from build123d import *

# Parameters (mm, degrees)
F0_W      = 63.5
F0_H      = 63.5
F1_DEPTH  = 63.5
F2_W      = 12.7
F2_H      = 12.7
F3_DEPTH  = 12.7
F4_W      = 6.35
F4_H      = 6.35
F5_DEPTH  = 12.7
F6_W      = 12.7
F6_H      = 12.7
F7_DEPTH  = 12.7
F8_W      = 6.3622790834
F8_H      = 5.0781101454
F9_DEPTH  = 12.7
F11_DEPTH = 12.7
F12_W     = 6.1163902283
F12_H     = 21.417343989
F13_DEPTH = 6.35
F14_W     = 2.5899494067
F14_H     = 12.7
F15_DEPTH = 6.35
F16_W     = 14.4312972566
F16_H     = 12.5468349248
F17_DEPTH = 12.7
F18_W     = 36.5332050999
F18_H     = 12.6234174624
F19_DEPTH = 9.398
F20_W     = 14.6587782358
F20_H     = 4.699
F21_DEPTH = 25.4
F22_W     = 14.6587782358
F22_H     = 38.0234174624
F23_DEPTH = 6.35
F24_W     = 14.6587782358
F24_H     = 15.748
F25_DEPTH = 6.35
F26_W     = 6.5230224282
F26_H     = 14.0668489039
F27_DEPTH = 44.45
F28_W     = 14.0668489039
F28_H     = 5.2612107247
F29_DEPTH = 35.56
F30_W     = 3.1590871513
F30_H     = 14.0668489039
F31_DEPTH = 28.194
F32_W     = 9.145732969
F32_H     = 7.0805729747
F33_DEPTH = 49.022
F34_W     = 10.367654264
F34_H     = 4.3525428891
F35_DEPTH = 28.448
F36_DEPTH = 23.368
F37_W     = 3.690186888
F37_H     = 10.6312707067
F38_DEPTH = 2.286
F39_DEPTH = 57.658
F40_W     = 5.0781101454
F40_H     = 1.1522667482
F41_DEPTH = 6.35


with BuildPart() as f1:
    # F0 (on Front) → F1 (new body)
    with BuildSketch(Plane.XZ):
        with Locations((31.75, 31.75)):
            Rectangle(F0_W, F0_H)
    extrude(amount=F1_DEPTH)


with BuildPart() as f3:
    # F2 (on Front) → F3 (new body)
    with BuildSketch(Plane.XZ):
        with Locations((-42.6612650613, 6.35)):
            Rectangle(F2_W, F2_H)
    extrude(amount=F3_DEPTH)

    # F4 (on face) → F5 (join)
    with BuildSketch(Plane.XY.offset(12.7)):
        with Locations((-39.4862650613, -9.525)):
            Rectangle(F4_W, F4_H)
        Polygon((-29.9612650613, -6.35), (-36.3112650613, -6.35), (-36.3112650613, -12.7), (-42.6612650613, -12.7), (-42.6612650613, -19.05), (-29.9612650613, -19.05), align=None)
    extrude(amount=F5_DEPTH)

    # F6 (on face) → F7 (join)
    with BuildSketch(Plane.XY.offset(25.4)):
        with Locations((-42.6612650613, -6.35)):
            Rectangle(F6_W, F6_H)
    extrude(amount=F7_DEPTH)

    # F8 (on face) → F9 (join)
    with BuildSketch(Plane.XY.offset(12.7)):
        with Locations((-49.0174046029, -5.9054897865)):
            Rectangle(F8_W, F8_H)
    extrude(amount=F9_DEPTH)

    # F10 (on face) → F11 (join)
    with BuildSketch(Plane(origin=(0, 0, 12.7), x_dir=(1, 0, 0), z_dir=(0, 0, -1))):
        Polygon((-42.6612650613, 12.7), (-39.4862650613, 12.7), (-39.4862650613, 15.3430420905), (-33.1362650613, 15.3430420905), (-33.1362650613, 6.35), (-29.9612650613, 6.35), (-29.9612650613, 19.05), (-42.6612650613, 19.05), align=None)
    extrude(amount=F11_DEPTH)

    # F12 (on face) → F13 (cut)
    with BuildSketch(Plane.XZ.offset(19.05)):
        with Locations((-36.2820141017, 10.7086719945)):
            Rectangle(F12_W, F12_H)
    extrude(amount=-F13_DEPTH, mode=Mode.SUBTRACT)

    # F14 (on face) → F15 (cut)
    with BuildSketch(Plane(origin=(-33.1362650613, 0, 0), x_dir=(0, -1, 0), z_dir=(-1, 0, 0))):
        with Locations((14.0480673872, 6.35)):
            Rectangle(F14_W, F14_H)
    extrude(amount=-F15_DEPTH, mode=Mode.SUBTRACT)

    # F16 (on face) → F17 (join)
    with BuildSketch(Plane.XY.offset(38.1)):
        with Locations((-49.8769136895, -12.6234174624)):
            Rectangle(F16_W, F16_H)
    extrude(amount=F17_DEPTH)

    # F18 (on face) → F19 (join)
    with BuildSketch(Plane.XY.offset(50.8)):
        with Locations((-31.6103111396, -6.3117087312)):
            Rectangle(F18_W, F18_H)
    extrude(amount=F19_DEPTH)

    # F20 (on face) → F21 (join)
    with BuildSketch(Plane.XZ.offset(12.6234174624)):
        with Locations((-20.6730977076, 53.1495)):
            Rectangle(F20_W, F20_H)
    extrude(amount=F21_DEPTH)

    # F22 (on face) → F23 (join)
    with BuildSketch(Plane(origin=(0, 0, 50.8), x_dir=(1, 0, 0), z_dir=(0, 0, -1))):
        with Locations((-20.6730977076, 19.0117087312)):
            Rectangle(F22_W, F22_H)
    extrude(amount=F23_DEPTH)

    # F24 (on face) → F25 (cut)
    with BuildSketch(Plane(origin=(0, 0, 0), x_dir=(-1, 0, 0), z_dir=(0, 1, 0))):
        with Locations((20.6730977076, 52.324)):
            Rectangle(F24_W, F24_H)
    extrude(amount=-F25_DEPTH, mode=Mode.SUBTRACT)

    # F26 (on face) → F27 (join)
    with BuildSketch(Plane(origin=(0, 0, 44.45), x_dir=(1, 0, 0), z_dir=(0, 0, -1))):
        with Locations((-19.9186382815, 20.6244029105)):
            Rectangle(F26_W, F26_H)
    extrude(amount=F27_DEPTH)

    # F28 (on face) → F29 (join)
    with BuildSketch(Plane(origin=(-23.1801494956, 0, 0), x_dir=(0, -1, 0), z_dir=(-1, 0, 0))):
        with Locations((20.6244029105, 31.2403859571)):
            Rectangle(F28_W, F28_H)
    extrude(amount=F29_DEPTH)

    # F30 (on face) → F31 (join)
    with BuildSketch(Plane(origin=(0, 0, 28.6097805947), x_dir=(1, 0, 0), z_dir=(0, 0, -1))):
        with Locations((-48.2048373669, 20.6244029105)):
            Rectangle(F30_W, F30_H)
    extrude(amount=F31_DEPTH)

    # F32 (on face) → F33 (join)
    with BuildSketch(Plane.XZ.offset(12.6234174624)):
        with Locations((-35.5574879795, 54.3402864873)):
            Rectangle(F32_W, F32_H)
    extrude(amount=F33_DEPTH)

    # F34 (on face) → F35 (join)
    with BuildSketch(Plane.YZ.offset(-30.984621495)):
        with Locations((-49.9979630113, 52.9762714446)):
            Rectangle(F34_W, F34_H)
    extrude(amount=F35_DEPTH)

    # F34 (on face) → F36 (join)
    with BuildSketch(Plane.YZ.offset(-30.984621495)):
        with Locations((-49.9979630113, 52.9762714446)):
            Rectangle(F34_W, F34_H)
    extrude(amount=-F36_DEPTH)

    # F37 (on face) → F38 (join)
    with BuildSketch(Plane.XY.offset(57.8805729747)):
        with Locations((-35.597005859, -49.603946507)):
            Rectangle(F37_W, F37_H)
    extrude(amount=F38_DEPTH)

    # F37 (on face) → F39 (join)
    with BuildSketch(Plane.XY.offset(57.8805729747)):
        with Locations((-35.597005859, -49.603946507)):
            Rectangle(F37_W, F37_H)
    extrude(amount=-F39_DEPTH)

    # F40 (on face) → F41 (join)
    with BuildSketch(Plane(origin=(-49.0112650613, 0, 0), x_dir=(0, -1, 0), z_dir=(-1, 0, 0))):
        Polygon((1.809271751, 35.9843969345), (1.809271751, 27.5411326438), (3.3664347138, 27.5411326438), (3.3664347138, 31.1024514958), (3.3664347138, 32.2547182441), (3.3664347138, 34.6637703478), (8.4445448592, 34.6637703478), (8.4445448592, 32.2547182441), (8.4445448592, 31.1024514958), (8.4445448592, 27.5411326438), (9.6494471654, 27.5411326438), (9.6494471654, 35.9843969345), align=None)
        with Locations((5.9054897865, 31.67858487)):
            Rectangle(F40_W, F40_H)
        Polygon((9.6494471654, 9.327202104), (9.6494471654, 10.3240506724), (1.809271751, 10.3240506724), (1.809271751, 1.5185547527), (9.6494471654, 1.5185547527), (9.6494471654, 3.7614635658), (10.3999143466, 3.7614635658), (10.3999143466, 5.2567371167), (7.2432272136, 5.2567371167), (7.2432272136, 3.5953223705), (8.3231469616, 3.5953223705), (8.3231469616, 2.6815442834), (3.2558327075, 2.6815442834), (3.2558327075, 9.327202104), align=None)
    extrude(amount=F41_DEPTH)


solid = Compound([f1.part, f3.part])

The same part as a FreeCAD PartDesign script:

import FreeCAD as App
import Part
import Sketcher
from FreeCAD import Vector
Q = App.Units.Quantity


def add_polygon(sketch, points):
    """Adds a closed chain of lines whose ends are joined by coincident constraints."""
    first, n = sketch.GeometryCount, len(points)
    for a, b in zip(points, points[1:] + points[:1]):
        sketch.addGeometry(Part.LineSegment(App.Vector(*a, 0), App.Vector(*b, 0)), False)
    for i in range(n):
        sketch.addConstraint(Sketcher.Constraint("Coincident", first + i, 2, first + (i + 1) % n, 1))

doc = App.newDocument("Part")
params = doc.addObject("Spreadsheet::Sheet", "Params")
for row, (alias, value) in enumerate([
    ("sketch1_width", "2.5 in"),
    ("pad1_length", "2.5 in"),
    ("sketch2_width", "0.5 in"),
    ("pad2_length", "0.5 in"),
    ("sketch3_width", "0.5 in"),
    ("pad3_length", "0.5 in"),
    ("sketch4_width", "0.5 in"),
    ("pad4_length", "0.5 in"),
    ("pad5_length", "0.5 in"),
    ("sketch6_width", "0.5 in"),
    ("sketch6_width2", "0.25 in"),
    ("pad6_length", "0.5 in"),
    ("pocket1_length", "0.25 in"),
    ("sketch8_height", "0.5 in"),
    ("pocket2_length", "0.25 in"),
    ("pad7_length", "0.5 in"),
    ("pad8_length", "0.37 in"),
    ("sketch11_height", "0.185 in"),
    ("pad9_length", "1 in"),
    ("pad10_length", "0.25 in"),
    ("sketch13_height", "0.62 in"),
    ("pocket3_length", "0.25 in"),
    ("pad11_length", "1.75 in"),
    ("pad12_length", "1.4 in"),
    ("pad13_length", "1.11 in"),
    ("pad14_length", "1.93 in"),
    ("pad15_length", "1.12 in"),
    ("pad16_length", "0.92 in"),
    ("pad17_length", "0.09 in"),
    ("pad18_length", "2.27 in"),
    ("pad19_length", "0.25 in"),
], start=1):
    params.set(f"A{row}", alias)
    params.set(f"B{row}", "=" + value)
    params.setAlias(f"B{row}", alias)

body = doc.addObject("PartDesign::Body", "Body")

sketch1 = body.newObject("Sketcher::SketchObject", "Sketch")
sketch1.AttachmentSupport = (doc.getObject("XZ_Plane"), [""])
sketch1.MapMode = "FlatFace"
add_polygon(sketch1, [(0, 64), (0, 0), (64, 0), (64, 64)])
sketch1.addConstraint(Sketcher.Constraint("Vertical", 0))
sketch1.addConstraint(Sketcher.Constraint("Horizontal", 1))
sketch1.addConstraint(Sketcher.Constraint("Vertical", 2))
sketch1.addConstraint(Sketcher.Constraint("Horizontal", 3))
sketch1.addConstraint(Sketcher.Constraint("Coincident", 0, 2, -1, 1))
sketch1.addConstraint(Sketcher.Constraint("Equal", 3, 0))
sketch1.addConstraint(Sketcher.Constraint("DistanceX", 1, 1, 1, 2, Q("2.5 in")))
sketch1.setExpression("Constraints[10]", "Params.sketch1_width")
pad1 = body.newObject("PartDesign::Pad", "Pad")
pad1.Profile = sketch1
pad1.setExpression("Length", "Params.pad1_length")
body2 = doc.addObject("PartDesign::Body", "Body001")

sketch2 = body2.newObject("Sketcher::SketchObject", "Sketch001")
sketch2.AttachmentSupport = (doc.getObject("XZ_Plane001"), [""])
sketch2.MapMode = "FlatFace"
add_polygon(sketch2, [(-49, 13), (-49, 0), (-36, 0), (-36, 13)])
sketch2.addConstraint(Sketcher.Constraint("Vertical", 0))
sketch2.addConstraint(Sketcher.Constraint("Horizontal", 1))
sketch2.addConstraint(Sketcher.Constraint("Vertical", 2))
sketch2.addConstraint(Sketcher.Constraint("Horizontal", 3))
sketch2.addConstraint(Sketcher.Constraint("PointOnObject", 0, 2, -1))
sketch2.addConstraint(Sketcher.Constraint("Equal", 3, 0))
sketch2.addConstraint(Sketcher.Constraint("DistanceX", 1, 1, 1, 2, Q("0.5 in")))
sketch2.addConstraint(Sketcher.Constraint("DistanceX", 0, 2, -1, 1, 49.011265))
sketch2.setExpression("Constraints[10]", "Params.sketch2_width")
pad2 = body2.newObject("PartDesign::Pad", "Pad001")
pad2.Profile = sketch2
pad2.setExpression("Length", "Params.pad2_length")

sketch3 = body2.newObject("Sketcher::SketchObject", "Sketch002")
sketch3.AttachmentSupport = (doc.getObject("XY_Plane001"), [""])
sketch3.MapMode = "FlatFace"
sketch3.AttachmentOffset = App.Placement(Vector(0, 0, 0.5 * 25.4), App.Rotation())
add_polygon(sketch3, [(-43, -6), (-43, -19), (-30, -19), (-30, -6)])
sketch3.addConstraint(Sketcher.Constraint("Vertical", 0))
sketch3.addConstraint(Sketcher.Constraint("Horizontal", 1))
sketch3.addConstraint(Sketcher.Constraint("Vertical", 2))
sketch3.addConstraint(Sketcher.Constraint("Horizontal", 3))
sketch3.addConstraint(Sketcher.Constraint("Equal", 3, 0))
sketch3.addConstraint(Sketcher.Constraint("DistanceX", 1, 1, 1, 2, Q("0.5 in")))
sketch3.addConstraint(Sketcher.Constraint("DistanceY", 0, 2, -1, 1, Q("0.75 in")))
sketch3.addConstraint(Sketcher.Constraint("DistanceX", 0, 2, -1, 1, 42.661265))
sketch3.setExpression("Constraints[9]", "Params.sketch3_width")
pad3 = body2.newObject("PartDesign::Pad", "Pad002")
pad3.Profile = sketch3
pad3.setExpression("Length", "Params.pad3_length")

sketch4 = body2.newObject("Sketcher::SketchObject", "Sketch003")
sketch4.AttachmentSupport = (doc.getObject("XY_Plane001"), [""])
sketch4.MapMode = "FlatFace"
sketch4.AttachmentOffset = App.Placement(Vector(0, 0, 1 * 25.4), App.Rotation())
add_polygon(sketch4, [(-49, 0), (-49, -13), (-36, -13), (-36, 0)])
sketch4.addConstraint(Sketcher.Constraint("Vertical", 0))
sketch4.addConstraint(Sketcher.Constraint("Horizontal", 1))
sketch4.addConstraint(Sketcher.Constraint("Vertical", 2))
sketch4.addConstraint(Sketcher.Constraint("Horizontal", 3))
sketch4.addConstraint(Sketcher.Constraint("PointOnObject", 2, 2, -1))
sketch4.addConstraint(Sketcher.Constraint("Equal", 3, 0))
sketch4.addConstraint(Sketcher.Constraint("DistanceX", 1, 1, 1, 2, Q("0.5 in")))
sketch4.addConstraint(Sketcher.Constraint("DistanceX", 0, 2, -1, 1, 49.011265))
sketch4.setExpression("Constraints[10]", "Params.sketch4_width")
pad4 = body2.newObject("PartDesign::Pad", "Pad003")
pad4.Profile = sketch4
pad4.setExpression("Length", "Params.pad4_length")

sketch5 = body2.newObject("Sketcher::SketchObject", "Sketch004")
sketch5.AttachmentSupport = (doc.getObject("XY_Plane001"), [""])
sketch5.MapMode = "FlatFace"
sketch5.AttachmentOffset = App.Placement(Vector(0, 0, 0.5 * 25.4), App.Rotation())
add_polygon(sketch5, [(-52, -3), (-52, -8), (-46, -8), (-46, -3)])
sketch5.addConstraint(Sketcher.Constraint("Vertical", 0))
sketch5.addConstraint(Sketcher.Constraint("Horizontal", 1))
sketch5.addConstraint(Sketcher.Constraint("Vertical", 2))
sketch5.addConstraint(Sketcher.Constraint("Horizontal", 3))
sketch5.addConstraint(Sketcher.Constraint("DistanceX", 1, 1, 1, 2, 6.362279))
sketch5.addConstraint(Sketcher.Constraint("DistanceY", 0, 2, 0, 1, 5.07811))
sketch5.addConstraint(Sketcher.Constraint("DistanceX", 0, 2, -1, 1, 52.198544))
sketch5.addConstraint(Sketcher.Constraint("DistanceY", 0, 2, -1, 1, 8.444545))
pad5 = body2.newObject("PartDesign::Pad", "Pad004")
pad5.Profile = sketch5
pad5.setExpression("Length", "Params.pad5_length")

sketch6 = body2.newObject("Sketcher::SketchObject", "Sketch005")
sketch6.AttachmentSupport = (doc.getObject("XY_Plane001"), [""])
sketch6.MapMode = "FlatFace"
sketch6.AttachmentOffset = App.Placement(Vector(0, 0, 0.5 * 25.4), App.Rotation())
add_polygon(sketch6, [(-42.7, -12.7), (-39.5, -12.7), (-39.5, -15.3), (-33.1, -15.3), (-33.1, -6.3), (-30, -6.3), (-30, -19.1), (-42.7, -19.1)])
sketch6.addConstraint(Sketcher.Constraint("Horizontal", 0))
sketch6.addConstraint(Sketcher.Constraint("Vertical", 1))
sketch6.addConstraint(Sketcher.Constraint("Horizontal", 2))
sketch6.addConstraint(Sketcher.Constraint("Vertical", 3))
sketch6.addConstraint(Sketcher.Constraint("Horizontal", 4))
sketch6.addConstraint(Sketcher.Constraint("Vertical", 5))
sketch6.addConstraint(Sketcher.Constraint("Horizontal", 6))
sketch6.addConstraint(Sketcher.Constraint("Vertical", 7))
sketch6.addConstraint(Sketcher.Constraint("Equal", 0, 4))
sketch6.addConstraint(Sketcher.Constraint("Equal", 6, 5))
sketch6.addConstraint(Sketcher.Constraint("Equal", 2, 7))
sketch6.addConstraint(Sketcher.Constraint("DistanceX", 6, 2, 6, 1, Q("0.5 in")))
sketch6.addConstraint(Sketcher.Constraint("DistanceX", 2, 1, 2, 2, Q("0.25 in")))
sketch6.addConstraint(Sketcher.Constraint("DistanceY", 0, 2, -1, 1, Q("0.5 in")))
sketch6.addConstraint(Sketcher.Constraint("DistanceY", 1, 2, 1, 1, 2.643042))
sketch6.addConstraint(Sketcher.Constraint("DistanceX", 0, 2, -1, 1, 39.486265))
sketch6.setExpression("Constraints[19]", "Params.sketch6_width")
sketch6.setExpression("Constraints[20]", "Params.sketch6_width2")
pad6 = body2.newObject("PartDesign::Pad", "Pad005")
pad6.Profile = sketch6
pad6.setExpression("Length", "Params.pad6_length")
pad6.Reversed = True

sketch7 = body2.newObject("Sketcher::SketchObject", "Sketch006")
sketch7.AttachmentSupport = (doc.getObject("XZ_Plane001"), [""])
sketch7.MapMode = "FlatFace"
sketch7.AttachmentOffset = App.Placement(Vector(0, 0, 0.75 * 25.4), App.Rotation())
add_polygon(sketch7, [(-39, 21), (-39, 0), (-33, 0), (-33, 21)])
sketch7.addConstraint(Sketcher.Constraint("Vertical", 0))
sketch7.addConstraint(Sketcher.Constraint("Horizontal", 1))
sketch7.addConstraint(Sketcher.Constraint("Vertical", 2))
sketch7.addConstraint(Sketcher.Constraint("Horizontal", 3))
sketch7.addConstraint(Sketcher.Constraint("PointOnObject", 0, 2, -1))
sketch7.addConstraint(Sketcher.Constraint("DistanceX", 1, 1, 1, 2, 6.11639))
sketch7.addConstraint(Sketcher.Constraint("DistanceY", 0, 2, 0, 1, 21.417344))
sketch7.addConstraint(Sketcher.Constraint("DistanceX", 0, 2, -1, 1, 39.340209))
pocket1 = body2.newObject("PartDesign::Pocket", "Pocket")
pocket1.Profile = sketch7
pocket1.setExpression("Length", "Params.pocket1_length")

sketch8 = body2.newObject("Sketcher::SketchObject", "Sketch007")
sketch8.AttachmentSupport = (doc.getObject("YZ_Plane001"), [""])
sketch8.MapMode = "FlatFace"
sketch8.AttachmentOffset = App.Placement(Vector(0, 0, -33.136265), App.Rotation())
add_polygon(sketch8, [(-12.8, 12.7), (-12.8, 0), (-15.3, 0), (-15.3, 12.7)])
sketch8.addConstraint(Sketcher.Constraint("Vertical", 0))
sketch8.addConstraint(Sketcher.Constraint("Horizontal", 1))
sketch8.addConstraint(Sketcher.Constraint("Vertical", 2))
sketch8.addConstraint(Sketcher.Constraint("Horizontal", 3))
sketch8.addConstraint(Sketcher.Constraint("PointOnObject", 0, 2, -1))
sketch8.addConstraint(Sketcher.Constraint("DistanceY", 0, 2, 0, 1, Q("0.5 in")))
sketch8.addConstraint(Sketcher.Constraint("DistanceX", 1, 2, 1, 1, 2.589949))
sketch8.addConstraint(Sketcher.Constraint("DistanceX", 0, 2, -1, 1, 12.753093))
sketch8.setExpression("Constraints[9]", "Params.sketch8_height")
pocket2 = body2.newObject("PartDesign::Pocket", "Pocket001")
pocket2.Profile = sketch8
pocket2.setExpression("Length", "Params.pocket2_length")
pocket2.Reversed = True

sketch9 = body2.newObject("Sketcher::SketchObject", "Sketch008")
sketch9.AttachmentSupport = (doc.getObject("XY_Plane001"), [""])
sketch9.MapMode = "FlatFace"
sketch9.AttachmentOffset = App.Placement(Vector(0, 0, 1.5 * 25.4), App.Rotation())
add_polygon(sketch9, [(-57, -6), (-57, -19), (-43, -19), (-43, -6)])
sketch9.addConstraint(Sketcher.Constraint("Vertical", 0))
sketch9.addConstraint(Sketcher.Constraint("Horizontal", 1))
sketch9.addConstraint(Sketcher.Constraint("Vertical", 2))
sketch9.addConstraint(Sketcher.Constraint("Horizontal", 3))
sketch9.addConstraint(Sketcher.Constraint("DistanceY", 2, 2, -1, 1, Q("0.25 in")))
sketch9.addConstraint(Sketcher.Constraint("DistanceX", 1, 1, 1, 2, 14.431297))
sketch9.addConstraint(Sketcher.Constraint("DistanceY", 0, 2, 0, 1, 12.546835))
sketch9.addConstraint(Sketcher.Constraint("DistanceX", 0, 2, -1, 1, 57.092562))
pad7 = body2.newObject("PartDesign::Pad", "Pad006")
pad7.Profile = sketch9
pad7.setExpression("Length", "Params.pad7_length")

sketch10 = body2.newObject("Sketcher::SketchObject", "Sketch009")
sketch10.AttachmentSupport = (doc.getObject("XY_Plane001"), [""])
sketch10.MapMode = "FlatFace"
sketch10.AttachmentOffset = App.Placement(Vector(0, 0, 2 * 25.4), App.Rotation())
add_polygon(sketch10, [(-50, 0), (-50, -13), (-13, -13), (-13, 0)])
sketch10.addConstraint(Sketcher.Constraint("Vertical", 0))
sketch10.addConstraint(Sketcher.Constraint("Horizontal", 1))
sketch10.addConstraint(Sketcher.Constraint("Vertical", 2))
sketch10.addConstraint(Sketcher.Constraint("Horizontal", 3))
sketch10.addConstraint(Sketcher.Constraint("PointOnObject", 2, 2, -1))
sketch10.addConstraint(Sketcher.Constraint("DistanceX", 1, 1, 1, 2, 36.533205))
sketch10.addConstraint(Sketcher.Constraint("DistanceY", 0, 2, 0, 1, 12.623417))
sketch10.addConstraint(Sketcher.Constraint("DistanceX", 1, 2, -1, 1, 13.343709))
pad8 = body2.newObject("PartDesign::Pad", "Pad007")
pad8.Profile = sketch10
pad8.setExpression("Length", "Params.pad8_length")

sketch11 = body2.newObject("Sketcher::SketchObject", "Sketch010")
sketch11.AttachmentSupport = (doc.getObject("XZ_Plane001"), [""])
sketch11.MapMode = "FlatFace"
sketch11.AttachmentOffset = App.Placement(Vector(0, 0, 12.623417), App.Rotation())
add_polygon(sketch11, [(-28, 55.5), (-28, 50.8), (-13.3, 50.8), (-13.3, 55.5)])
sketch11.addConstraint(Sketcher.Constraint("Vertical", 0))
sketch11.addConstraint(Sketcher.Constraint("Horizontal", 1))
sketch11.addConstraint(Sketcher.Constraint("Vertical", 2))
sketch11.addConstraint(Sketcher.Constraint("Horizontal", 3))
sketch11.addConstraint(Sketcher.Constraint("DistanceY", -1, 1, 0, 2, Q("2 in")))
sketch11.addConstraint(Sketcher.Constraint("DistanceY", 0, 2, 0, 1, Q("0.185 in")))
sketch11.addConstraint(Sketcher.Constraint("DistanceX", 1, 1, 1, 2, 14.658778))
sketch11.addConstraint(Sketcher.Constraint("DistanceX", 1, 2, -1, 1, 13.343709))
sketch11.setExpression("Constraints[9]", "Params.sketch11_height")
pad9 = body2.newObject("PartDesign::Pad", "Pad008")
pad9.Profile = sketch11
pad9.setExpression("Length", "Params.pad9_length")

sketch12 = body2.newObject("Sketcher::SketchObject", "Sketch011")
sketch12.AttachmentSupport = (doc.getObject("XY_Plane001"), [""])
sketch12.MapMode = "FlatFace"
sketch12.AttachmentOffset = App.Placement(Vector(0, 0, 2 * 25.4), App.Rotation())
add_polygon(sketch12, [(-28, -38), (-28, 0), (-13, 0), (-13, -38)])
sketch12.addConstraint(Sketcher.Constraint("Vertical", 0))
sketch12.addConstraint(Sketcher.Constraint("Horizontal", 1))
sketch12.addConstraint(Sketcher.Constraint("Vertical", 2))
sketch12.addConstraint(Sketcher.Constraint("Horizontal", 3))
sketch12.addConstraint(Sketcher.Constraint("PointOnObject", 0, 2, -1))
sketch12.addConstraint(Sketcher.Constraint("DistanceX", 1, 1, 1, 2, 14.658778))
sketch12.addConstraint(Sketcher.Constraint("DistanceY", 0, 1, 0, 2, 38.023417))
sketch12.addConstraint(Sketcher.Constraint("DistanceX", 1, 2, -1, 1, 13.343709))
pad10 = body2.newObject("PartDesign::Pad", "Pad009")
pad10.Profile = sketch12
pad10.setExpression("Length", "Params.pad10_length")
pad10.Reversed = True

sketch13 = body2.newObject("Sketcher::SketchObject", "Sketch012")
sketch13.AttachmentSupport = (doc.getObject("XZ_Plane001"), [""])
sketch13.MapMode = "FlatFace"
add_polygon(sketch13, [(-13, 60), (-13, 44), (-28, 44), (-28, 60)])
sketch13.addConstraint(Sketcher.Constraint("Vertical", 0))
sketch13.addConstraint(Sketcher.Constraint("Horizontal", 1))
sketch13.addConstraint(Sketcher.Constraint("Vertical", 2))
sketch13.addConstraint(Sketcher.Constraint("Horizontal", 3))
sketch13.addConstraint(Sketcher.Constraint("DistanceY", 0, 2, 0, 1, Q("0.62 in")))
sketch13.addConstraint(Sketcher.Constraint("DistanceY", -1, 1, 0, 2, Q("1.75 in")))
sketch13.addConstraint(Sketcher.Constraint("DistanceX", 1, 2, 1, 1, 14.658778))
sketch13.addConstraint(Sketcher.Constraint("DistanceX", 0, 2, -1, 1, 13.343709))
sketch13.setExpression("Constraints[8]", "Params.sketch13_height")
pocket3 = body2.newObject("PartDesign::Pocket", "Pocket002")
pocket3.Profile = sketch13
pocket3.setExpression("Length", "Params.pocket3_length")
pocket3.Reversed = True

sketch14 = body2.newObject("Sketcher::SketchObject", "Sketch013")
sketch14.AttachmentSupport = (doc.getObject("XY_Plane001"), [""])
sketch14.MapMode = "FlatFace"
sketch14.AttachmentOffset = App.Placement(Vector(0, 0, 1.75 * 25.4), App.Rotation())
add_polygon(sketch14, [(-23, -28), (-23, -14), (-17, -14), (-17, -28)])
sketch14.addConstraint(Sketcher.Constraint("Vertical", 0))
sketch14.addConstraint(Sketcher.Constraint("Horizontal", 1))
sketch14.addConstraint(Sketcher.Constraint("Vertical", 2))
sketch14.addConstraint(Sketcher.Constraint("Horizontal", 3))
sketch14.addConstraint(Sketcher.Constraint("DistanceY", 0, 1, 0, 2, 14.066849))
sketch14.addConstraint(Sketcher.Constraint("DistanceX", 1, 1, 1, 2, 6.523022))
sketch14.addConstraint(Sketcher.Constraint("DistanceX", 0, 2, -1, 1, 23.180149))
sketch14.addConstraint(Sketcher.Constraint("DistanceY", 0, 2, -1, 1, 13.590978))
pad11 = body2.newObject("PartDesign::Pad", "Pad010")
pad11.Profile = sketch14
pad11.setExpression("Length", "Params.pad11_length")
pad11.Reversed = True

sketch15 = body2.newObject("Sketcher::SketchObject", "Sketch014")
sketch15.AttachmentSupport = (doc.getObject("YZ_Plane001"), [""])
sketch15.MapMode = "FlatFace"
sketch15.AttachmentOffset = App.Placement(Vector(0, 0, -23.180149), App.Rotation())
add_polygon(sketch15, [(-14, 34), (-14, 29), (-28, 29), (-28, 34)])
sketch15.addConstraint(Sketcher.Constraint("Vertical", 0))
sketch15.addConstraint(Sketcher.Constraint("Horizontal", 1))
sketch15.addConstraint(Sketcher.Constraint("Vertical", 2))
sketch15.addConstraint(Sketcher.Constraint("Horizontal", 3))
sketch15.addConstraint(Sketcher.Constraint("DistanceX", 1, 2, 1, 1, 14.066849))
sketch15.addConstraint(Sketcher.Constraint("DistanceY", 0, 2, 0, 1, 5.261211))
sketch15.addConstraint(Sketcher.Constraint("DistanceX", 0, 2, -1, 1, 13.590978))
sketch15.addConstraint(Sketcher.Constraint("DistanceY", -1, 1, 0, 2, 28.609781))
pad12 = body2.newObject("PartDesign::Pad", "Pad011")
pad12.Profile = sketch15
pad12.setExpression("Length", "Params.pad12_length")
pad12.Reversed = True

sketch16 = body2.newObject("Sketcher::SketchObject", "Sketch015")
sketch16.AttachmentSupport = (doc.getObject("XY_Plane001"), [""])
sketch16.MapMode = "FlatFace"
sketch16.AttachmentOffset = App.Placement(Vector(0, 0, 28.609781), App.Rotation())
add_polygon(sketch16, [(-49.8, -27.7), (-49.8, -13.6), (-46.6, -13.6), (-46.6, -27.7)])
sketch16.addConstraint(Sketcher.Constraint("Vertical", 0))
sketch16.addConstraint(Sketcher.Constraint("Horizontal", 1))
sketch16.addConstraint(Sketcher.Constraint("Vertical", 2))
sketch16.addConstraint(Sketcher.Constraint("Horizontal", 3))
sketch16.addConstraint(Sketcher.Constraint("DistanceY", 0, 1, 0, 2, 14.066849))
sketch16.addConstraint(Sketcher.Constraint("DistanceX", 1, 1, 1, 2, 3.159087))
sketch16.addConstraint(Sketcher.Constraint("DistanceX", 0, 2, -1, 1, 49.784381))
sketch16.addConstraint(Sketcher.Constraint("DistanceY", 0, 2, -1, 1, 13.590978))
pad13 = body2.newObject("PartDesign::Pad", "Pad012")
pad13.Profile = sketch16
pad13.setExpression("Length", "Params.pad13_length")
pad13.Reversed = True

sketch17 = body2.newObject("Sketcher::SketchObject", "Sketch016")
sketch17.AttachmentSupport = (doc.getObject("XZ_Plane001"), [""])
sketch17.MapMode = "FlatFace"
sketch17.AttachmentOffset = App.Placement(Vector(0, 0, 12.623417), App.Rotation())
add_polygon(sketch17, [(-40, 58), (-40, 51), (-31, 51), (-31, 58)])
sketch17.addConstraint(Sketcher.Constraint("Vertical", 0))
sketch17.addConstraint(Sketcher.Constraint("Horizontal", 1))
sketch17.addConstraint(Sketcher.Constraint("Vertical", 2))
sketch17.addConstraint(Sketcher.Constraint("Horizontal", 3))
sketch17.addConstraint(Sketcher.Constraint("DistanceY", -1, 1, 0, 2, Q("2 in")))
sketch17.addConstraint(Sketcher.Constraint("DistanceX", 1, 1, 1, 2, 9.145733))
sketch17.addConstraint(Sketcher.Constraint("DistanceY", 0, 2, 0, 1, 7.080573))
sketch17.addConstraint(Sketcher.Constraint("DistanceX", 1, 2, -1, 1, 30.984621))
pad14 = body2.newObject("PartDesign::Pad", "Pad013")
pad14.Profile = sketch17
pad14.setExpression("Length", "Params.pad14_length")

sketch18 = body2.newObject("Sketcher::SketchObject", "Sketch017")
sketch18.AttachmentSupport = (doc.getObject("YZ_Plane001"), [""])
sketch18.MapMode = "FlatFace"
sketch18.AttachmentOffset = App.Placement(Vector(0, 0, -30.984621), App.Rotation())
add_polygon(sketch18, [(-55.2, 55.2), (-55.2, 50.8), (-44.8, 50.8), (-44.8, 55.2)])
sketch18.addConstraint(Sketcher.Constraint("Vertical", 0))
sketch18.addConstraint(Sketcher.Constraint("Horizontal", 1))
sketch18.addConstraint(Sketcher.Constraint("Vertical", 2))
sketch18.addConstraint(Sketcher.Constraint("Horizontal", 3))
sketch18.addConstraint(Sketcher.Constraint("DistanceY", -1, 1, 0, 2, Q("2 in")))
sketch18.addConstraint(Sketcher.Constraint("DistanceX", 1, 1, 1, 2, 10.367654))
sketch18.addConstraint(Sketcher.Constraint("DistanceY", 0, 2, 0, 1, 4.352543))
sketch18.addConstraint(Sketcher.Constraint("DistanceX", 0, 2, -1, 1, 55.18179))
pad15 = body2.newObject("PartDesign::Pad", "Pad014")
pad15.Profile = sketch18
pad15.setExpression("Length", "Params.pad15_length")

sketch19 = body2.newObject("Sketcher::SketchObject", "Sketch018")
sketch19.AttachmentSupport = (doc.getObject("YZ_Plane001"), [""])
sketch19.MapMode = "FlatFace"
sketch19.AttachmentOffset = App.Placement(Vector(0, 0, -30.984621), App.Rotation())
add_polygon(sketch19, [(-55.2, 55.2), (-55.2, 50.8), (-44.8, 50.8), (-44.8, 55.2)])
sketch19.addConstraint(Sketcher.Constraint("Vertical", 0))
sketch19.addConstraint(Sketcher.Constraint("Horizontal", 1))
sketch19.addConstraint(Sketcher.Constraint("Vertical", 2))
sketch19.addConstraint(Sketcher.Constraint("Horizontal", 3))
sketch19.addConstraint(Sketcher.Constraint("DistanceY", -1, 1, 0, 2, Q("2 in")))
sketch19.addConstraint(Sketcher.Constraint("DistanceX", 1, 1, 1, 2, 10.367654))
sketch19.addConstraint(Sketcher.Constraint("DistanceY", 0, 2, 0, 1, 4.352543))
sketch19.addConstraint(Sketcher.Constraint("DistanceX", 0, 2, -1, 1, 55.18179))
pad16 = body2.newObject("PartDesign::Pad", "Pad015")
pad16.Profile = sketch19
pad16.setExpression("Length", "Params.pad16_length")
pad16.Reversed = True

sketch20 = body2.newObject("Sketcher::SketchObject", "Sketch019")
sketch20.AttachmentSupport = (doc.getObject("XY_Plane001"), [""])
sketch20.MapMode = "FlatFace"
sketch20.AttachmentOffset = App.Placement(Vector(0, 0, 57.880573), App.Rotation())
add_polygon(sketch20, [(-37.4, -44.3), (-37.4, -54.9), (-33.8, -54.9), (-33.8, -44.3)])
sketch20.addConstraint(Sketcher.Constraint("Vertical", 0))
sketch20.addConstraint(Sketcher.Constraint("Horizontal", 1))
sketch20.addConstraint(Sketcher.Constraint("Vertical", 2))
sketch20.addConstraint(Sketcher.Constraint("Horizontal", 3))
sketch20.addConstraint(Sketcher.Constraint("DistanceY", 0, 2, 0, 1, 10.631271))
sketch20.addConstraint(Sketcher.Constraint("DistanceX", 0, 2, -1, 1, 37.442099))
sketch20.addConstraint(Sketcher.Constraint("DistanceX", 1, 1, 1, 2, 3.690187))
sketch20.addConstraint(Sketcher.Constraint("DistanceY", 0, 2, -1, 1, 54.919582))
pad17 = body2.newObject("PartDesign::Pad", "Pad016")
pad17.Profile = sketch20
pad17.setExpression("Length", "Params.pad17_length")

sketch21 = body2.newObject("Sketcher::SketchObject", "Sketch020")
sketch21.AttachmentSupport = (doc.getObject("XY_Plane001"), [""])
sketch21.MapMode = "FlatFace"
sketch21.AttachmentOffset = App.Placement(Vector(0, 0, 57.880573), App.Rotation())
add_polygon(sketch21, [(-37.4, -44.3), (-37.4, -54.9), (-33.8, -54.9), (-33.8, -44.3)])
sketch21.addConstraint(Sketcher.Constraint("Vertical", 0))
sketch21.addConstraint(Sketcher.Constraint("Horizontal", 1))
sketch21.addConstraint(Sketcher.Constraint("Vertical", 2))
sketch21.addConstraint(Sketcher.Constraint("Horizontal", 3))
sketch21.addConstraint(Sketcher.Constraint("DistanceY", 0, 2, 0, 1, 10.631271))
sketch21.addConstraint(Sketcher.Constraint("DistanceX", 0, 2, -1, 1, 37.442099))
sketch21.addConstraint(Sketcher.Constraint("DistanceX", 1, 1, 1, 2, 3.690187))
sketch21.addConstraint(Sketcher.Constraint("DistanceY", 0, 2, -1, 1, 54.919582))
pad18 = body2.newObject("PartDesign::Pad", "Pad017")
pad18.Profile = sketch21
pad18.setExpression("Length", "Params.pad18_length")
pad18.Reversed = True

sketch22 = body2.newObject("Sketcher::SketchObject", "Sketch021")
sketch22.AttachmentSupport = (doc.getObject("YZ_Plane001"), [""])
sketch22.MapMode = "FlatFace"
sketch22.AttachmentOffset = App.Placement(Vector(0, 0, -49.011265), App.Rotation())
add_polygon(sketch22, [(-1.8, 36), (-1.8, 27.5), (-3.4, 27.5), (-3.4, 31.1), (-8.4, 31.1), (-8.4, 27.5), (-9.6, 27.5), (-9.6, 36)])
add_polygon(sketch22, [(-3.4, 32.3), (-3.4, 34.7), (-8.4, 34.7), (-8.4, 32.3)])
add_polygon(sketch22, [(-9.6, 9.3), (-9.6, 10.3), (-1.8, 10.3), (-1.8, 1.5), (-9.6, 1.5), (-9.6, 3.8), (-10.4, 3.8), (-10.4, 5.3), (-7.2, 5.3), (-7.2, 3.6), (-8.3, 3.6), (-8.3, 2.7), (-3.3, 2.7), (-3.3, 9.3)])
sketch22.addConstraint(Sketcher.Constraint("Vertical", 0))
sketch22.addConstraint(Sketcher.Constraint("Horizontal", 1))
sketch22.addConstraint(Sketcher.Constraint("Vertical", 2))
sketch22.addConstraint(Sketcher.Constraint("Horizontal", 3))
sketch22.addConstraint(Sketcher.Constraint("Vertical", 4))
sketch22.addConstraint(Sketcher.Constraint("Horizontal", 5))
sketch22.addConstraint(Sketcher.Constraint("Vertical", 6))
sketch22.addConstraint(Sketcher.Constraint("Horizontal", 7))
sketch22.addConstraint(Sketcher.Constraint("Vertical", 8))
sketch22.addConstraint(Sketcher.Constraint("Horizontal", 9))
sketch22.addConstraint(Sketcher.Constraint("Vertical", 10))
sketch22.addConstraint(Sketcher.Constraint("Horizontal", 11))
sketch22.addConstraint(Sketcher.Constraint("Vertical", 12))
sketch22.addConstraint(Sketcher.Constraint("Horizontal", 13))
sketch22.addConstraint(Sketcher.Constraint("Vertical", 14))
sketch22.addConstraint(Sketcher.Constraint("Horizontal", 15))
sketch22.addConstraint(Sketcher.Constraint("Vertical", 16))
sketch22.addConstraint(Sketcher.Constraint("Horizontal", 17))
sketch22.addConstraint(Sketcher.Constraint("Vertical", 18))
sketch22.addConstraint(Sketcher.Constraint("Horizontal", 19))
sketch22.addConstraint(Sketcher.Constraint("Vertical", 20))
sketch22.addConstraint(Sketcher.Constraint("Horizontal", 21))
sketch22.addConstraint(Sketcher.Constraint("Vertical", 22))
sketch22.addConstraint(Sketcher.Constraint("Horizontal", 23))
sketch22.addConstraint(Sketcher.Constraint("Vertical", 24))
sketch22.addConstraint(Sketcher.Constraint("Horizontal", 25))
sketch22.addConstraint(Sketcher.Constraint("Horizontal", 1, 2, 4, 2))
sketch22.addConstraint(Sketcher.Constraint("Vertical", 2, 2, 8, 2))
sketch22.addConstraint(Sketcher.Constraint("Vertical", 4, 2, 9, 2))
sketch22.addConstraint(Sketcher.Constraint("Vertical", 6, 2, 12, 2))
sketch22.addConstraint(Sketcher.Constraint("Vertical", 7, 2, 13, 2))
sketch22.addConstraint(Sketcher.Constraint("Vertical", 12, 2, 15, 2))
sketch22.addConstraint(Sketcher.Constraint("DistanceX", 3, 2, 3, 1, 5.07811))
sketch22.addConstraint(Sketcher.Constraint("DistanceX", 21, 2, 21, 1, 1.07992))
sketch22.addConstraint(Sketcher.Constraint("DistanceY", 2, 1, 2, 2, 3.561319))
sketch22.addConstraint(Sketcher.Constraint("DistanceY", 12, 1, 12, 2, 0.996849))
sketch22.addConstraint(Sketcher.Constraint("DistanceY", 16, 1, 16, 2, 2.242909))
sketch22.addConstraint(Sketcher.Constraint("DistanceY", 22, 2, 22, 1, 0.913778))
sketch22.addConstraint(Sketcher.Constraint("DistanceY", 12, 2, 3, 2, 20.778401))
sketch22.addConstraint(Sketcher.Constraint("DistanceX", 16, 2, 21, 2, 1.3263))
sketch22.addConstraint(Sketcher.Constraint("DistanceX", 1, 2, 1, 1, 1.557163))
sketch22.addConstraint(Sketcher.Constraint("DistanceX", 5, 2, 5, 1, 1.204902))
sketch22.addConstraint(Sketcher.Constraint("DistanceX", 17, 2, 17, 1, 0.750467))
sketch22.addConstraint(Sketcher.Constraint("DistanceX", 23, 1, 23, 2, 5.067314))
sketch22.addConstraint(Sketcher.Constraint("DistanceY", 0, 2, 0, 1, 8.443264))
sketch22.addConstraint(Sketcher.Constraint("DistanceY", 8, 1, 8, 2, 2.409052))
sketch22.addConstraint(Sketcher.Constraint("DistanceY", 14, 2, 14, 1, 8.805496))
sketch22.addConstraint(Sketcher.Constraint("DistanceY", 18, 1, 18, 2, 1.495274))
sketch22.addConstraint(Sketcher.Constraint("DistanceY", 20, 2, 20, 1, 1.661415))
sketch22.addConstraint(Sketcher.Constraint("DistanceX", 0, 2, -1, 1, 1.809272))
sketch22.addConstraint(Sketcher.Constraint("DistanceY", -1, 1, 2, 2, 31.102451))
sketch22.addConstraint(Sketcher.Constraint("DistanceY", -1, 1, 8, 2, 34.66377))
pad19 = body2.newObject("PartDesign::Pad", "Pad018")
pad19.Profile = sketch22
pad19.setExpression("Length", "Params.pad19_length")
pad19.Reversed = True

doc.recompute()
